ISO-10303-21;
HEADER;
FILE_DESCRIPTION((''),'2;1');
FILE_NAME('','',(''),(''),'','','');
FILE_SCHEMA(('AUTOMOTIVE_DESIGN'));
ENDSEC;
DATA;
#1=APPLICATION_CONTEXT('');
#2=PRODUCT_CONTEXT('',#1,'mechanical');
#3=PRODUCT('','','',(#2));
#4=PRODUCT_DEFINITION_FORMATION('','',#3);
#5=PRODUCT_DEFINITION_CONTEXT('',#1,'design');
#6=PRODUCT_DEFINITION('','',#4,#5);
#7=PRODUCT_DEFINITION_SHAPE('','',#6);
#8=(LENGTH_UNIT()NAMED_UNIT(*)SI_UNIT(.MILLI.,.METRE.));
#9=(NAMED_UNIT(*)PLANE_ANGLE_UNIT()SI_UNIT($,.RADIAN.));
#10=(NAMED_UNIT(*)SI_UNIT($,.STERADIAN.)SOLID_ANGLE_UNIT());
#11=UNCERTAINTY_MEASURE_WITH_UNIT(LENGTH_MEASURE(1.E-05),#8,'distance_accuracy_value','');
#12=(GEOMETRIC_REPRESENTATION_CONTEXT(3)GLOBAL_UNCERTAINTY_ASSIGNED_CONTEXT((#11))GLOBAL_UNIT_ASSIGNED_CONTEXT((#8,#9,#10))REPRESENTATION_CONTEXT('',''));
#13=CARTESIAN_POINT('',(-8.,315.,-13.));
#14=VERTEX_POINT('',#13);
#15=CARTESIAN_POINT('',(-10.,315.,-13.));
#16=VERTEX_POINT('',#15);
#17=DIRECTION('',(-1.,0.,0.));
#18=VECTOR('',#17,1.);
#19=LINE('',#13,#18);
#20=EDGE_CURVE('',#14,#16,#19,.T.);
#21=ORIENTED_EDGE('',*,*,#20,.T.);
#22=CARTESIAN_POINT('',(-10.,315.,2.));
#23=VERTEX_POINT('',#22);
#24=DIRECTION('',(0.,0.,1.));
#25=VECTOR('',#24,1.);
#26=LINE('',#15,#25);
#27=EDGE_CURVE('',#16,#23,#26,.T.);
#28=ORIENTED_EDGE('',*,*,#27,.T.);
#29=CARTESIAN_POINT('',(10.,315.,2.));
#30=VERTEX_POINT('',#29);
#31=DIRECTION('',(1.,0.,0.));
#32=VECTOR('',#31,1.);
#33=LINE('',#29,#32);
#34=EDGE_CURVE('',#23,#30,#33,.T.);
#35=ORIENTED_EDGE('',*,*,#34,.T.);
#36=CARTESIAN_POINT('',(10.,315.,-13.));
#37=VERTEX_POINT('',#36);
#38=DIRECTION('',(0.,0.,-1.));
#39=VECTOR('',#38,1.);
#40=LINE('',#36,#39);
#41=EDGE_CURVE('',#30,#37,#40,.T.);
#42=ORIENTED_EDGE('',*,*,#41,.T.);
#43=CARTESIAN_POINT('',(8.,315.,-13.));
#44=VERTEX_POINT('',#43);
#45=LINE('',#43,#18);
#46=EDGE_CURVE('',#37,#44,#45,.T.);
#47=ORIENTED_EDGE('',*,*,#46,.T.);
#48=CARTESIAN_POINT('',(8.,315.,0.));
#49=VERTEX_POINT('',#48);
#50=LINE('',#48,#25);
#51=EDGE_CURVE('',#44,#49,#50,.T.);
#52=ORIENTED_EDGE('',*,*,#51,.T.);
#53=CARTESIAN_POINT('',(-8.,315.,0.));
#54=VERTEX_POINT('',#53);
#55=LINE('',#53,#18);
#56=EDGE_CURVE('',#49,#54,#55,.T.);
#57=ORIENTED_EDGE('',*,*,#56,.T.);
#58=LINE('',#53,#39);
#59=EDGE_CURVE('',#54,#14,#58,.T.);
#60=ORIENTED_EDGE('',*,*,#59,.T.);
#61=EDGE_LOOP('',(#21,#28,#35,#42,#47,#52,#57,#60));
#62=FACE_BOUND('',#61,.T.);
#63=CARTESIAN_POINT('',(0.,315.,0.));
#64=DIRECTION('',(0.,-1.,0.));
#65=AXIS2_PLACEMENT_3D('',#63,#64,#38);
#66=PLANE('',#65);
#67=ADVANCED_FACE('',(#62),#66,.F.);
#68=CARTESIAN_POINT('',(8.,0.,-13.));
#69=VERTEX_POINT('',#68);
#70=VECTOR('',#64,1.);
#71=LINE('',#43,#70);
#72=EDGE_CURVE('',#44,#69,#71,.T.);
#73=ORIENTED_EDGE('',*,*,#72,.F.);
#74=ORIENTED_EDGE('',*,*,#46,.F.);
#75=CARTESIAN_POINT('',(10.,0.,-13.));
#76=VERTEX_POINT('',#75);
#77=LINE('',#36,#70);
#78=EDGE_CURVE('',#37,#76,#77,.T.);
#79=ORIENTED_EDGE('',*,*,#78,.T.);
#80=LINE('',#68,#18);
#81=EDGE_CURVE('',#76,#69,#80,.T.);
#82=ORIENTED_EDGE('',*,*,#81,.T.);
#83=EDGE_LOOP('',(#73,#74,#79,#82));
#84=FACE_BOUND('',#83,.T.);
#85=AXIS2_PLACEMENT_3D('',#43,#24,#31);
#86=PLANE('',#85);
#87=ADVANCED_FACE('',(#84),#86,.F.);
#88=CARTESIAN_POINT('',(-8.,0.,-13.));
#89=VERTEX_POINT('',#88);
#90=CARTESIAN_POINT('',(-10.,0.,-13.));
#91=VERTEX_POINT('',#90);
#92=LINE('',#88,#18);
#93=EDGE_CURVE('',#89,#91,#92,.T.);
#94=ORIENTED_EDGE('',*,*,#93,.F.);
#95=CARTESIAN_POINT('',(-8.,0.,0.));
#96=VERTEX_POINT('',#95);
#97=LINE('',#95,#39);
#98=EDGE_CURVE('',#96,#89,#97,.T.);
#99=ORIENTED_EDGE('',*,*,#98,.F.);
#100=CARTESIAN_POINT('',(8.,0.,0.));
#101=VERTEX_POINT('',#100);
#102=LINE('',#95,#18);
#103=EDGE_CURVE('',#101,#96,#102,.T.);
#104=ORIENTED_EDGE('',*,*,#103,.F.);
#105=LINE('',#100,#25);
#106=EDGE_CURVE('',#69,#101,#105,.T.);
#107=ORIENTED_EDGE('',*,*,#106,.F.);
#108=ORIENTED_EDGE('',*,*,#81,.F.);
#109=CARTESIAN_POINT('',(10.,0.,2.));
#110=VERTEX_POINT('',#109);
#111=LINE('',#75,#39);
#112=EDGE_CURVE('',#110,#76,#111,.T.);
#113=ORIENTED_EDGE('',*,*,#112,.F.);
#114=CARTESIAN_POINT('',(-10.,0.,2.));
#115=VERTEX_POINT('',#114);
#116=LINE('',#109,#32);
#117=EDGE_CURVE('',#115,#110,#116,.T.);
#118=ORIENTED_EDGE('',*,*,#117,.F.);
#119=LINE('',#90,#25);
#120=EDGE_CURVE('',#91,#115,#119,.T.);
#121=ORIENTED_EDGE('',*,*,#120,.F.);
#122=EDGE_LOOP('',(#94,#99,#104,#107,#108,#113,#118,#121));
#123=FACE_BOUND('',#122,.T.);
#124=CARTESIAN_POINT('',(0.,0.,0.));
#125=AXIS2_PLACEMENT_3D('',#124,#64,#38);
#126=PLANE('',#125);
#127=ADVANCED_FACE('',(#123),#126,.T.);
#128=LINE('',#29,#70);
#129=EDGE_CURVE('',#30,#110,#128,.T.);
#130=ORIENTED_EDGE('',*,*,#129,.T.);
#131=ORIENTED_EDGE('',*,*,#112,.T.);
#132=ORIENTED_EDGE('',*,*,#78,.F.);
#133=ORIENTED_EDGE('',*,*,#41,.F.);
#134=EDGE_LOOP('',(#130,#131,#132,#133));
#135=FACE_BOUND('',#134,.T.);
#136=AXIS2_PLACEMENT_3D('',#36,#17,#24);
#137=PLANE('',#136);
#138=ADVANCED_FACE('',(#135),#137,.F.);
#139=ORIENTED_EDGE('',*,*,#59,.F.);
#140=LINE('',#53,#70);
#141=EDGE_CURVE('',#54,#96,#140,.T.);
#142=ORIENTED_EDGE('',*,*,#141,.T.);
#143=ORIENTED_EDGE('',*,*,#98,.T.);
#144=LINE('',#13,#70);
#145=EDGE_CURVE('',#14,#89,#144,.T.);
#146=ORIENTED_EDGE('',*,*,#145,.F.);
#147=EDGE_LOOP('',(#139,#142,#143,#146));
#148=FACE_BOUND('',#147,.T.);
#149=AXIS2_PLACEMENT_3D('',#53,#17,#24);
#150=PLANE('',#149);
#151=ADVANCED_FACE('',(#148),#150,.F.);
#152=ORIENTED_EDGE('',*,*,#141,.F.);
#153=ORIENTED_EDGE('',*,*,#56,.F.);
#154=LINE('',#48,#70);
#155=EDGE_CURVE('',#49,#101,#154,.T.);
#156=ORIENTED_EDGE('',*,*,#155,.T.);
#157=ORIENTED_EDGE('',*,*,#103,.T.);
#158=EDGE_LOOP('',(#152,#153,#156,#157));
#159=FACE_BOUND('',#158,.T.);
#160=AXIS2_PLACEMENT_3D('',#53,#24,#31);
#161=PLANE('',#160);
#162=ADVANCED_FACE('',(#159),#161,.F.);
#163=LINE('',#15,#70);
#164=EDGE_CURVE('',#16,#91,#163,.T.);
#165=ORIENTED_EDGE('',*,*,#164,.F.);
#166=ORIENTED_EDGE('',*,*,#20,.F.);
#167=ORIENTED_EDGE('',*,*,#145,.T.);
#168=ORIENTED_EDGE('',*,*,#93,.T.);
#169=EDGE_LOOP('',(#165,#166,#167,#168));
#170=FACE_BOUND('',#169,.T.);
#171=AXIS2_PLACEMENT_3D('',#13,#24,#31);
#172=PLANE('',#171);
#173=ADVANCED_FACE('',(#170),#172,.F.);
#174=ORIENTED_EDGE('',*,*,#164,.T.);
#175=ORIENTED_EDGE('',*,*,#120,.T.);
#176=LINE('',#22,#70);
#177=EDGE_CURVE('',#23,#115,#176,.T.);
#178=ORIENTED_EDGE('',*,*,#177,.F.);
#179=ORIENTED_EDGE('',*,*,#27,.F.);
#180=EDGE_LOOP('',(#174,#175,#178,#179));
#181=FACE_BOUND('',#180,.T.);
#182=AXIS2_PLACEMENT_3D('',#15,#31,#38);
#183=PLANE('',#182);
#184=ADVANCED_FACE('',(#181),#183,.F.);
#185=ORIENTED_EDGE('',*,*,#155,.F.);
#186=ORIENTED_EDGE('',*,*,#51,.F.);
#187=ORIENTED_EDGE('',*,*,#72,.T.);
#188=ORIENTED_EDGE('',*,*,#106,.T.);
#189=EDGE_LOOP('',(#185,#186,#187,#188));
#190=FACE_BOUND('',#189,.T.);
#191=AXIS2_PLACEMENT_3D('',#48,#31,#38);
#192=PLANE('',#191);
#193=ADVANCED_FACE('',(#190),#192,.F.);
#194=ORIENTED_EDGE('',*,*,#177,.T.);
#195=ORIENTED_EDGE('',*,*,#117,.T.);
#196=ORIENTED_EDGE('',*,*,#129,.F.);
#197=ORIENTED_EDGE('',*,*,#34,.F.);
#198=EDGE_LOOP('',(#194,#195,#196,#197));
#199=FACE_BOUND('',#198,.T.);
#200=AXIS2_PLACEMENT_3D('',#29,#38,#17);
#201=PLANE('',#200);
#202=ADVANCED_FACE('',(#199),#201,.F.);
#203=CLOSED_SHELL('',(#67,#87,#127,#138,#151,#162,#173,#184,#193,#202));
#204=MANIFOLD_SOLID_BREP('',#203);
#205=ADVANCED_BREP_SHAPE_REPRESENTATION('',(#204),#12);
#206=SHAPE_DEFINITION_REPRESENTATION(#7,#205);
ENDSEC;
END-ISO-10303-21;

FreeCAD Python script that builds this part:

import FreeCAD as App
import Part
import Sketcher


def add_polygon(sketch, points):
    """Adds a closed chain of lines whose ends are joined by coincident constraints."""
    first, n = sketch.GeometryCount, len(points)
    for a, b in zip(points, points[1:] + points[:1]):
        sketch.addGeometry(Part.LineSegment(App.Vector(*a, 0), App.Vector(*b, 0)), False)
    for i in range(n):
        sketch.addConstraint(Sketcher.Constraint("Coincident", first + i, 2, first + (i + 1) % n, 1))

doc = App.newDocument("Part")
body = doc.addObject("PartDesign::Body", "Body")

# Sketch on XZ plane
sketch1 = body.newObject("Sketcher::SketchObject", "Sketch")
sketch1.AttachmentSupport = (doc.getObject("XZ_Plane"), [""])
sketch1.MapMode = "FlatFace"
add_polygon(sketch1, [(8, 0), (-8, 0), (-8, -13), (-10, -13), (-10, 2), (10, 2), (10, -13), (8, -13)])  # lines 0-7
sketch1.addConstraint(Sketcher.Constraint("Horizontal", 0))
sketch1.addConstraint(Sketcher.Constraint("Vertical", 1))
sketch1.addConstraint(Sketcher.Constraint("Horizontal", 2))
sketch1.addConstraint(Sketcher.Constraint("Vertical", 3))
sketch1.addConstraint(Sketcher.Constraint("Horizontal", 4))
sketch1.addConstraint(Sketcher.Constraint("Vertical", 5))
sketch1.addConstraint(Sketcher.Constraint("Horizontal", 6))
sketch1.addConstraint(Sketcher.Constraint("Vertical", 7))
sketch1.addConstraint(Sketcher.Constraint("Symmetric", 0, 2, 7, 2, -1, 1))
sketch1.addConstraint(Sketcher.Constraint("Symmetric", 2, 2, 5, 2, -2))
sketch1.addConstraint(Sketcher.Constraint("DistanceX", 0, 2, 0, 1, 16.0))
sketch1.addConstraint(Sketcher.Constraint("DistanceX", 2, 2, 2, 1, 2.0))
sketch1.addConstraint(Sketcher.Constraint("DistanceY", 1, 2, 1, 1, 13.0))
sketch1.addConstraint(Sketcher.Constraint("DistanceY", 3, 1, 3, 2, 15.0))
pad1 = body.newObject("PartDesign::Pad", "Pad")
pad1.Profile = sketch1
pad1.Length = 315
pad1.Reversed = True

doc.recompute()
